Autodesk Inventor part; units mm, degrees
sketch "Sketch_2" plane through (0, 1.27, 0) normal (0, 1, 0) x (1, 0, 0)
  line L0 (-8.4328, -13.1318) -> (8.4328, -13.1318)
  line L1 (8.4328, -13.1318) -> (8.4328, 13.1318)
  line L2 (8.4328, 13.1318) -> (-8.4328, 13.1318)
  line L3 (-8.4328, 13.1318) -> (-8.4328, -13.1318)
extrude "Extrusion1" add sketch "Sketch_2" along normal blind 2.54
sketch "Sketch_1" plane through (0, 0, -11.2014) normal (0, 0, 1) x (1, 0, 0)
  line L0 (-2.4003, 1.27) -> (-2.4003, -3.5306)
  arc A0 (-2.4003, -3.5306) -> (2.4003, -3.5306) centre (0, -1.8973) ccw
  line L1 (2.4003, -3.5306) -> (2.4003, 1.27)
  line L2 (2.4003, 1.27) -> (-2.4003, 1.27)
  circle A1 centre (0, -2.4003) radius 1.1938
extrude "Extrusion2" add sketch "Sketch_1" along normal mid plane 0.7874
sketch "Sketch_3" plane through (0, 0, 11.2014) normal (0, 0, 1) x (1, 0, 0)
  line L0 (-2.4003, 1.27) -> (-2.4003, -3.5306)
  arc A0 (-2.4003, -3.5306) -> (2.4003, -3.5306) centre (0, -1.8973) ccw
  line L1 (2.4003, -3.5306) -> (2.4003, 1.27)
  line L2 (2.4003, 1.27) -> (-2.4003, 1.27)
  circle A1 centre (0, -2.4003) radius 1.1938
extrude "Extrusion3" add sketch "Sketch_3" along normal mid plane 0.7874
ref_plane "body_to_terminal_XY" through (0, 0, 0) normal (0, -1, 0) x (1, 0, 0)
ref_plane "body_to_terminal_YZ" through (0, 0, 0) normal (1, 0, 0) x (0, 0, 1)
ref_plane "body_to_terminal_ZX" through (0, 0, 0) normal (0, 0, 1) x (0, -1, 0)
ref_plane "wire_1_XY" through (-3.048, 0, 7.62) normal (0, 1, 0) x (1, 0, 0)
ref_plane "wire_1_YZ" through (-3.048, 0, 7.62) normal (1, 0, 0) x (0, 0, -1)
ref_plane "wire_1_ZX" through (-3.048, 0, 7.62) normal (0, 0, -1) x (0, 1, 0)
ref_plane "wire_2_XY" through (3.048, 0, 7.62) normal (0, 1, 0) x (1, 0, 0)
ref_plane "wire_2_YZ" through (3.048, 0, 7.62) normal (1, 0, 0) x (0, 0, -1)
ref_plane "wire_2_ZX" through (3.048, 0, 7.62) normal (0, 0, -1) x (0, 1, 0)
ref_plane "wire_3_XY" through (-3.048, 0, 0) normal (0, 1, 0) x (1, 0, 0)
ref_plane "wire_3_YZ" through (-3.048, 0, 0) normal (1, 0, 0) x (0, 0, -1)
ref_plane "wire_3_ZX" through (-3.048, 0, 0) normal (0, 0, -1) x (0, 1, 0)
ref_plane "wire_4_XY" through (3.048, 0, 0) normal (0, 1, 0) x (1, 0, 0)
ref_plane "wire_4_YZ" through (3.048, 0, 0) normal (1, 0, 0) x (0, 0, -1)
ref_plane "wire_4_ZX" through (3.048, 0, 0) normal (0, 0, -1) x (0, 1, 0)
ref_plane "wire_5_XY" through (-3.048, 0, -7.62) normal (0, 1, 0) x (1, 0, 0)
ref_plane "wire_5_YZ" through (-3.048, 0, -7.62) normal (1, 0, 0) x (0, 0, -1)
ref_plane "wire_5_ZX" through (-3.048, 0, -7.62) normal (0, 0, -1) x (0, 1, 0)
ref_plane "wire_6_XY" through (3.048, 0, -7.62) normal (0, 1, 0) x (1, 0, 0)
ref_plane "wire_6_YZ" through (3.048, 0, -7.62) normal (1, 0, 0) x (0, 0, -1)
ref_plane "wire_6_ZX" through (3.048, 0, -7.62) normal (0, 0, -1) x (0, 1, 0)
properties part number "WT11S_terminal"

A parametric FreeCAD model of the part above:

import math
import FreeCAD as App
import Part
import Sketcher
Q = App.Units.Quantity


def add_polygon(sketch, points):
    """Adds a closed chain of lines whose ends are joined by coincident constraints."""
    first, n = sketch.GeometryCount, len(points)
    for a, b in zip(points, points[1:] + points[:1]):
        sketch.addGeometry(Part.LineSegment(App.Vector(*a, 0), App.Vector(*b, 0)), False)
    for i in range(n):
        sketch.addConstraint(Sketcher.Constraint("Coincident", first + i, 2, first + (i + 1) % n, 1))

doc = App.newDocument("Part")
body = doc.addObject("PartDesign::Body", "Body")

# Sketch on XZ plane
sketch1 = body.newObject("Sketcher::SketchObject", "Sketch")
sketch1.AttachmentSupport = (doc.getObject("XZ_Plane"), [""])
sketch1.MapMode = "FlatFace"
sketch1.AttachmentOffset = App.Placement(App.Vector(0, 0, -0.05 * 25.4), App.Rotation())
add_polygon(sketch1, [(-8, -13), (-8, 13), (8, 13), (8, -13)])  # lines 0-3
sketch1.addConstraint([
    Sketcher.Constraint("Vertical", 0),
    Sketcher.Constraint("Horizontal", 1),
    Sketcher.Constraint("Vertical", 2),
    Sketcher.Constraint("Horizontal", 3),
    Sketcher.Constraint("Symmetric", 0, 2, 2, 2, -1, 1),
    Sketcher.Constraint("DistanceX", 1, 1, 1, 2, Q("0.664 in")),
    Sketcher.Constraint("DistanceY", 0, 1, 0, 2, Q("1.034 in")),
])
pad1 = body.newObject("PartDesign::Pad", "Pad")
pad1.Profile = sketch1
pad1.Length = Q("0.1 in")
pad1.Reversed = True

# Sketch on XY plane
sketch2 = body.newObject("Sketcher::SketchObject", "Sketch001")
sketch2.AttachmentSupport = (doc.getObject("XY_Plane"), [""])
sketch2.MapMode = "FlatFace"
sketch2.AttachmentOffset = App.Placement(App.Vector(0, 0, -0.441 * 25.4), App.Rotation())
sketch2.addGeometry([
    Part.LineSegment(App.Vector(2.4, 1.3, 0), App.Vector(-2.4, 1.3, 0)),  # 0
    Part.LineSegment(App.Vector(-2.4, 1.3, 0), App.Vector(-2.4, -3.5, 0)),  # 1
    Part.ArcOfCircle(Part.Circle(App.Vector(0, -1.9, 0), App.Vector(0, 0, 1), 2.9), math.radians(-146), math.radians(-34)),  # 2
    Part.LineSegment(App.Vector(2.4, -3.5, 0), App.Vector(2.4, 1.3, 0)),  # 3
    Part.Circle(App.Vector(0, -2.4, 0), App.Vector(0, 0, 1), 1.2),  # 4
], False)
sketch2.addConstraint([
    Sketcher.Constraint("Coincident", 0, 2, 1, 1),
    Sketcher.Constraint("Coincident", 1, 2, 2, 1),
    Sketcher.Constraint("Coincident", 2, 2, 3, 1),
    Sketcher.Constraint("Coincident", 3, 2, 0, 1),
    Sketcher.Constraint("Horizontal", 0),
    Sketcher.Constraint("Vertical", 1),
    Sketcher.Constraint("Vertical", 3),
    Sketcher.Constraint("Symmetric", 1, 2, 2, 2, -2),
    Sketcher.Constraint("PointOnObject", 4, 3, -2),
    Sketcher.Constraint("Equal", 0, 1),
    Sketcher.Constraint("Diameter", 4, Q("0.094 in")),
    Sketcher.Constraint("Radius", 2, Q("0.1143 in")),
    Sketcher.Constraint("DistanceX", 0, 2, 0, 1, Q("0.189 in")),
    Sketcher.Constraint("DistanceY", -1, 1, 0, 2, Q("0.05 in")),
    Sketcher.Constraint("DistanceY", 4, 3, -1, 1, Q("0.0945 in")),
])
pad2 = body.newObject("PartDesign::Pad", "Pad001")
pad2.Profile = sketch2
pad2.Length = Q("0.031 in")
pad2.Midplane = True

# Sketch on XY plane
sketch3 = body.newObject("Sketcher::SketchObject", "Sketch002")
sketch3.AttachmentSupport = (doc.getObject("XY_Plane"), [""])
sketch3.MapMode = "FlatFace"
sketch3.AttachmentOffset = App.Placement(App.Vector(0, 0, 0.441 * 25.4), App.Rotation())
sketch3.addGeometry([
    Part.LineSegment(App.Vector(2.4, 1.3, 0), App.Vector(-2.4, 1.3, 0)),  # 0
    Part.LineSegment(App.Vector(-2.4, 1.3, 0), App.Vector(-2.4, -3.5, 0)),  # 1
    Part.ArcOfCircle(Part.Circle(App.Vector(0, -1.9, 0), App.Vector(0, 0, 1), 2.9), math.radians(-146), math.radians(-34)),  # 2
    Part.LineSegment(App.Vector(2.4, -3.5, 0), App.Vector(2.4, 1.3, 0)),  # 3
    Part.Circle(App.Vector(0, -2.4, 0), App.Vector(0, 0, 1), 1.2),  # 4
], False)
sketch3.addConstraint([
    Sketcher.Constraint("Coincident", 0, 2, 1, 1),
    Sketcher.Constraint("Coincident", 1, 2, 2, 1),
    Sketcher.Constraint("Coincident", 2, 2, 3, 1),
    Sketcher.Constraint("Coincident", 3, 2, 0, 1),
    Sketcher.Constraint("Horizontal", 0),
    Sketcher.Constraint("Vertical", 1),
    Sketcher.Constraint("Vertical", 3),
    Sketcher.Constraint("Symmetric", 1, 2, 2, 2, -2),
    Sketcher.Constraint("PointOnObject", 4, 3, -2),
    Sketcher.Constraint("Equal", 0, 1),
    Sketcher.Constraint("Diameter", 4, Q("0.094 in")),
    Sketcher.Constraint("Radius", 2, Q("0.1143 in")),
    Sketcher.Constraint("DistanceX", 0, 2, 0, 1, Q("0.189 in")),
    Sketcher.Constraint("DistanceY", -1, 1, 0, 2, Q("0.05 in")),
    Sketcher.Constraint("DistanceY", 4, 3, -1, 1, Q("0.0945 in")),
])
pad3 = body.newObject("PartDesign::Pad", "Pad002")
pad3.Profile = sketch3
pad3.Length = Q("0.031 in")
pad3.Midplane = True

doc.recompute()
